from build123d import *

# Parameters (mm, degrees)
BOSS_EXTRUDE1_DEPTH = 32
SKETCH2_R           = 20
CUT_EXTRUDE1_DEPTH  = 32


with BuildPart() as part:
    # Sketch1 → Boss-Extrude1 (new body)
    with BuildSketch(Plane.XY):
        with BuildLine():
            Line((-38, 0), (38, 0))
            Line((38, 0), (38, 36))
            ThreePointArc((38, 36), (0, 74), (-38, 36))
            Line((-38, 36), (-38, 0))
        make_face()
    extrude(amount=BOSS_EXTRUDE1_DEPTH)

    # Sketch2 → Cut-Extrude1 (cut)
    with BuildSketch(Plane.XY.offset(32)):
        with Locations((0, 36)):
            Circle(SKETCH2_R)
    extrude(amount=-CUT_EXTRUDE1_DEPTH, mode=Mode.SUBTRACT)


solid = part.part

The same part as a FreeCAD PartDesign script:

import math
import FreeCAD as App
import Part
import Sketcher

V = App.Vector
Q = App.Units.Quantity

doc = App.newDocument("Part")
body = doc.addObject("PartDesign::Body", "Body")

# Sketch on XY plane
sketch1 = body.newObject("Sketcher::SketchObject", "Sketch")
sketch1.AttachmentSupport = (doc.getObject("XY_Plane"), [""])
sketch1.MapMode = "FlatFace"
sketch1.addGeometry(Part.LineSegment(V(-38, 0, 0), V(38, 0, 0)), False)
sketch1.addGeometry(Part.LineSegment(V(38, 0, 0), V(38, 36, 0)), False)
sketch1.addGeometry(Part.ArcOfCircle(Part.Circle(V(0, 36, 0), V(0, 0, 1), 38), math.radians(0), math.radians(180)), False)
sketch1.addGeometry(Part.LineSegment(V(-38, 36, 0), V(-38, 0, 0)), False)
sketch1.addConstraint(Sketcher.Constraint("Coincident", 0, 2, 1, 1))
sketch1.addConstraint(Sketcher.Constraint("Tangent", 1, 2, 2, 1))
sketch1.addConstraint(Sketcher.Constraint("Tangent", 2, 2, 3, 1))
sketch1.addConstraint(Sketcher.Constraint("Coincident", 3, 2, 0, 1))
sketch1.addConstraint(Sketcher.Constraint("Horizontal", 0))
sketch1.addConstraint(Sketcher.Constraint("Vertical", 1))
sketch1.addConstraint(Sketcher.Constraint("Vertical", 3))
sketch1.addConstraint(Sketcher.Constraint("Symmetric", 0, 2, 3, 2, -1, 1))
sketch1.addConstraint(Sketcher.Constraint("Radius", 2, Q("38 mm")))
sketch1.addConstraint(Sketcher.Constraint("DistanceY", 1, 1, 1, 2, Q("36 mm")))
pad1 = body.newObject("PartDesign::Pad", "Pad")
pad1.Profile = sketch1
pad1.Length = 32

# Sketch on XY plane
sketch2 = body.newObject("Sketcher::SketchObject", "Sketch001")
sketch2.AttachmentSupport = (doc.getObject("XY_Plane"), [""])
sketch2.MapMode = "FlatFace"
sketch2.AttachmentOffset = App.Placement(V(0, 0, 32), App.Rotation())
sketch2.addGeometry(Part.Circle(V(0, 36, 0), V(0, 0, 1), 20), False)
sketch2.addConstraint(Sketcher.Constraint("PointOnObject", 0, 3, -2))
sketch2.addConstraint(Sketcher.Constraint("Diameter", 0, Q("40 mm")))
sketch2.addConstraint(Sketcher.Constraint("DistanceY", -1, 1, 0, 3, Q("36 mm")))
pocket1 = body.newObject("PartDesign::Pocket", "Pocket")
pocket1.Profile = sketch2
pocket1.Length = 32

doc.recompute()
